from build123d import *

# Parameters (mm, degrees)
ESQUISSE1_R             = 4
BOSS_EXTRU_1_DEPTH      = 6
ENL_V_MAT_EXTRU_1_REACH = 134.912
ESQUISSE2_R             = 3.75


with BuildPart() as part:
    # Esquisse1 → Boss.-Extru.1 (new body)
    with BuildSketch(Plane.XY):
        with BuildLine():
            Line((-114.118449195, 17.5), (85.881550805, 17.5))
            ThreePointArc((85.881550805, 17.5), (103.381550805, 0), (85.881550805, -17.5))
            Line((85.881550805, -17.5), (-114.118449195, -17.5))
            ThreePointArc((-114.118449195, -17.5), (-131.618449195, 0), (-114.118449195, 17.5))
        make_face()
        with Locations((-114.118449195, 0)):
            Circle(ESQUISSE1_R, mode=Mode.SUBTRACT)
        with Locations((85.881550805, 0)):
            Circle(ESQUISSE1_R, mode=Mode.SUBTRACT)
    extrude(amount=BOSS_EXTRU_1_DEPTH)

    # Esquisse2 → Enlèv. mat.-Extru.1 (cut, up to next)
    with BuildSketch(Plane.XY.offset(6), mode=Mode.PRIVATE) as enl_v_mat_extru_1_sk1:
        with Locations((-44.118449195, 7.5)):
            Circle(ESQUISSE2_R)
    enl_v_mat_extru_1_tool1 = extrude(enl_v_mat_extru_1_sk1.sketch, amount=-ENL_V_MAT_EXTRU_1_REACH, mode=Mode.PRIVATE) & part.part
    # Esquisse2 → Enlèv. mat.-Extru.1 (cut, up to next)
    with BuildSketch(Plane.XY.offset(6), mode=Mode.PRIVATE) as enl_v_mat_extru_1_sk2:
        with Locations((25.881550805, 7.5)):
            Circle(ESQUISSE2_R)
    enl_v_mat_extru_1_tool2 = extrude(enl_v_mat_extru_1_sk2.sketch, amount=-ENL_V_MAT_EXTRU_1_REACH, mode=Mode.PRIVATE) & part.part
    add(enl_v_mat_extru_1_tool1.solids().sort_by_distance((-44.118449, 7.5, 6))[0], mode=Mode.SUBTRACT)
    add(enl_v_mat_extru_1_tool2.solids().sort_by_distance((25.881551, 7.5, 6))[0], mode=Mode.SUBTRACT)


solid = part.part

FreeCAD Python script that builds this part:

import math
import FreeCAD as App
import Part
import Sketcher

V = App.Vector

doc = App.newDocument("Part")
params = doc.addObject("Spreadsheet::Sheet", "Params")
for row, (alias, value) in enumerate([
    ("sketch1_diameter", "8 mm"),
    ("sketch1_radius", "17.5 mm"),
    ("sketch1_width", "200 mm"),
    ("pad1_length", "6 mm"),
    ("sketch2_diameter", "7.5 mm"),
    ("sketch3_diameter", "7.5 mm"),
], start=1):
    params.set(f"A{row}", alias)
    params.set(f"B{row}", "=" + value)
    params.setAlias(f"B{row}", alias)

body = doc.addObject("PartDesign::Body", "Body")

sketch1 = doc.addObject("Sketcher::SketchObject", "Sketch")
body.addObject(sketch1)
sketch1.AttachmentSupport = (doc.XY_Plane, [""])
sketch1.MapMode = "FlatFace"
sketch1.addGeometry([
    Part.LineSegment(V(85.9, 17.5, 0), V(-114.1, 17.5, 0)),
    Part.ArcOfCircle(Part.Circle(V(-114.1, 0, 0), V(0, 0, 1), 17.5), math.radians(90), math.radians(270)),
    Part.LineSegment(V(-114.1, -17.5, 0), V(85.9, -17.5, 0)),
    Part.ArcOfCircle(Part.Circle(V(85.9, 0, 0), V(0, 0, 1), 17.5), math.radians(-90), math.radians(90)),
    Part.Circle(V(85.9, 0, 0), V(0, 0, 1), 4),
    Part.Circle(V(-114.1, 0, 0), V(0, 0, 1), 4),
], False)
sketch1.addConstraint([
    Sketcher.Constraint("Tangent", 0, 2, 1, 1),
    Sketcher.Constraint("Tangent", 1, 2, 2, 1),
    Sketcher.Constraint("Tangent", 2, 2, 3, 1),
    Sketcher.Constraint("Tangent", 3, 2, 0, 1),
    Sketcher.Constraint("Horizontal", 0),
    Sketcher.Constraint("Horizontal", 2),
    Sketcher.Constraint("Coincident", 4, 3, 3, 3),
    Sketcher.Constraint("Coincident", 5, 3, 1, 3),
    Sketcher.Constraint("Equal", 4, 5),
    Sketcher.Constraint("PointOnObject", 1, 3, -1),
    Sketcher.Constraint("Diameter", 4, 8.0),
    Sketcher.Constraint("Radius", 1, 17.5),
    Sketcher.Constraint("DistanceX", 0, 2, 0, 1, 200.0),
    Sketcher.Constraint("DistanceX", 1, 3, -1, 1, 114.118449),
])
sketch1.setExpression("Constraints[10]", "Params.sketch1_diameter")
sketch1.setExpression("Constraints[11]", "Params.sketch1_radius")
sketch1.setExpression("Constraints[12]", "Params.sketch1_width")
pad1 = doc.addObject("PartDesign::Pad", "Pad")
body.addObject(pad1)
pad1.Profile = sketch1
pad1.setExpression("Length", "Params.pad1_length")

sketch2 = doc.addObject("Sketcher::SketchObject", "Sketch001")
body.addObject(sketch2)
sketch2.AttachmentSupport = (doc.XY_Plane, [""])
sketch2.MapMode = "FlatFace"
sketch2.AttachmentOffset = App.Placement(V(0, 0, 6), App.Rotation())
sketch2.addGeometry(Part.Circle(V(-44.1, 7.5, 0), V(0, 0, 1), 3.8), False)
sketch2.addConstraint([
    Sketcher.Constraint("Diameter", 0, 7.5),
    Sketcher.Constraint("DistanceY", -1, 1, 0, 3, 7.5),
    Sketcher.Constraint("DistanceX", 0, 3, -1, 1, 44.118449),
])
sketch2.setExpression("Constraints[0]", "Params.sketch2_diameter")
pocket1 = doc.addObject("PartDesign::Pocket", "Pocket")
body.addObject(pocket1)
pocket1.Profile = sketch2
pocket1.Type = "UpToFirst"

sketch3 = doc.addObject("Sketcher::SketchObject", "Sketch002")
body.addObject(sketch3)
sketch3.AttachmentSupport = (doc.XY_Plane, [""])
sketch3.MapMode = "FlatFace"
sketch3.AttachmentOffset = App.Placement(V(0, 0, 6), App.Rotation())
sketch3.addGeometry(Part.Circle(V(25.9, 7.5, 0), V(0, 0, 1), 3.8), False)
sketch3.addConstraint([
    Sketcher.Constraint("Diameter", 0, 7.5),
    Sketcher.Constraint("DistanceY", -1, 1, 0, 3, 7.5),
    Sketcher.Constraint("DistanceX", -1, 1, 0, 3, 25.881551),
])
sketch3.setExpression("Constraints[0]", "Params.sketch3_diameter")
pocket2 = doc.addObject("PartDesign::Pocket", "Pocket001")
body.addObject(pocket2)
pocket2.Profile = sketch3
pocket2.Type = "UpToFirst"

doc.recompute()
